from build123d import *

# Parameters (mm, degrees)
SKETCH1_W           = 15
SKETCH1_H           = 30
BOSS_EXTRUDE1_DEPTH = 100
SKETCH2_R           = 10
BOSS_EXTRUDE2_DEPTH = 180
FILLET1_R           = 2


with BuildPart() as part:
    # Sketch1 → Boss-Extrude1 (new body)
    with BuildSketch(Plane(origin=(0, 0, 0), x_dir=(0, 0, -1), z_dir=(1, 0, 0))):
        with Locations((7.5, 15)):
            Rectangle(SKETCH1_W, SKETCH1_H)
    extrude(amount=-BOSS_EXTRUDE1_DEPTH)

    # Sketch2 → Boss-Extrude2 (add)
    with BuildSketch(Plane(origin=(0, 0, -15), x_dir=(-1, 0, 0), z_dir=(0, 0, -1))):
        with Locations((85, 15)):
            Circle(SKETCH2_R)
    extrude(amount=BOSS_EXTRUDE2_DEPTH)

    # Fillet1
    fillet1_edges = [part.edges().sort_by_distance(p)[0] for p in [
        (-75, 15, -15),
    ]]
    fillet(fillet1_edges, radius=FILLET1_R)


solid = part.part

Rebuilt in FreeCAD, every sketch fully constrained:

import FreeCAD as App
import Part
import Sketcher
from FreeCAD import Vector


def edges_at(feature, points):
    """Names of the edges that pass closest to the given points."""
    edges = feature.Shape.Edges
    near = lambda p: min(range(len(edges)), key=lambda i: edges[i].distToShape(Part.Vertex(*p))[0])
    return sorted({f"Edge{near(p) + 1}" for p in points})

doc = App.newDocument("Part")
body = doc.addObject("PartDesign::Body", "Body")

sketch1 = body.newObject("Sketcher::SketchObject", "Sketch")
sketch1.AttachmentSupport = (doc.getObject("YZ_Plane"), [""])
sketch1.MapMode = "FlatFace"
sketch1.addGeometry([
    Part.LineSegment(Vector(30, 0, 0), Vector(0, 0, 0)),
    Part.LineSegment(Vector(0, 0, 0), Vector(0, -15, 0)),
    Part.LineSegment(Vector(0, -15, 0), Vector(30, -15, 0)),
    Part.LineSegment(Vector(30, -15, 0), Vector(30, 0, 0)),
], False)
sketch1.addConstraint([
    Sketcher.Constraint("Coincident", 0, 2, 1, 1),
    Sketcher.Constraint("Coincident", 1, 2, 2, 1),
    Sketcher.Constraint("Coincident", 2, 2, 3, 1),
    Sketcher.Constraint("Coincident", 3, 2, 0, 1),
    Sketcher.Constraint("Horizontal", 0),
    Sketcher.Constraint("Vertical", 1),
    Sketcher.Constraint("Horizontal", 2),
    Sketcher.Constraint("Vertical", 3),
    Sketcher.Constraint("Coincident", 0, 2, -1, 1),
    Sketcher.Constraint("DistanceX", 0, 2, 0, 1, 30.0),
    Sketcher.Constraint("DistanceY", 1, 2, 1, 1, 15.0),
])
pad1 = body.newObject("PartDesign::Pad", "Pad")
pad1.Profile = sketch1
pad1.Length = 100
pad1.Reversed = True

sketch2 = body.newObject("Sketcher::SketchObject", "Sketch001")
sketch2.AttachmentSupport = (doc.getObject("XY_Plane"), [""])
sketch2.MapMode = "FlatFace"
sketch2.AttachmentOffset = App.Placement(Vector(0, 0, -15), App.Rotation())
sketch2.addGeometry(Part.Circle(Vector(-85, 15, 0), Vector(0, 0, 1), 10), False)
sketch2.addConstraint([
    Sketcher.Constraint("Diameter", 0, 20.0),
    Sketcher.Constraint("DistanceX", 0, 3, -1, 1, 85.0),
    Sketcher.Constraint("DistanceY", -1, 1, 0, 3, 15.0),
])
pad2 = body.newObject("PartDesign::Pad", "Pad001")
pad2.Profile = sketch2
pad2.Length = 180
pad2.Reversed = True
doc.recompute()

fillet = body.newObject("PartDesign::Fillet", "Fillet")
fillet.Base = (pad2, edges_at(pad2, [(-75, 15, -15)]))
fillet.Radius = 2

doc.recompute()
